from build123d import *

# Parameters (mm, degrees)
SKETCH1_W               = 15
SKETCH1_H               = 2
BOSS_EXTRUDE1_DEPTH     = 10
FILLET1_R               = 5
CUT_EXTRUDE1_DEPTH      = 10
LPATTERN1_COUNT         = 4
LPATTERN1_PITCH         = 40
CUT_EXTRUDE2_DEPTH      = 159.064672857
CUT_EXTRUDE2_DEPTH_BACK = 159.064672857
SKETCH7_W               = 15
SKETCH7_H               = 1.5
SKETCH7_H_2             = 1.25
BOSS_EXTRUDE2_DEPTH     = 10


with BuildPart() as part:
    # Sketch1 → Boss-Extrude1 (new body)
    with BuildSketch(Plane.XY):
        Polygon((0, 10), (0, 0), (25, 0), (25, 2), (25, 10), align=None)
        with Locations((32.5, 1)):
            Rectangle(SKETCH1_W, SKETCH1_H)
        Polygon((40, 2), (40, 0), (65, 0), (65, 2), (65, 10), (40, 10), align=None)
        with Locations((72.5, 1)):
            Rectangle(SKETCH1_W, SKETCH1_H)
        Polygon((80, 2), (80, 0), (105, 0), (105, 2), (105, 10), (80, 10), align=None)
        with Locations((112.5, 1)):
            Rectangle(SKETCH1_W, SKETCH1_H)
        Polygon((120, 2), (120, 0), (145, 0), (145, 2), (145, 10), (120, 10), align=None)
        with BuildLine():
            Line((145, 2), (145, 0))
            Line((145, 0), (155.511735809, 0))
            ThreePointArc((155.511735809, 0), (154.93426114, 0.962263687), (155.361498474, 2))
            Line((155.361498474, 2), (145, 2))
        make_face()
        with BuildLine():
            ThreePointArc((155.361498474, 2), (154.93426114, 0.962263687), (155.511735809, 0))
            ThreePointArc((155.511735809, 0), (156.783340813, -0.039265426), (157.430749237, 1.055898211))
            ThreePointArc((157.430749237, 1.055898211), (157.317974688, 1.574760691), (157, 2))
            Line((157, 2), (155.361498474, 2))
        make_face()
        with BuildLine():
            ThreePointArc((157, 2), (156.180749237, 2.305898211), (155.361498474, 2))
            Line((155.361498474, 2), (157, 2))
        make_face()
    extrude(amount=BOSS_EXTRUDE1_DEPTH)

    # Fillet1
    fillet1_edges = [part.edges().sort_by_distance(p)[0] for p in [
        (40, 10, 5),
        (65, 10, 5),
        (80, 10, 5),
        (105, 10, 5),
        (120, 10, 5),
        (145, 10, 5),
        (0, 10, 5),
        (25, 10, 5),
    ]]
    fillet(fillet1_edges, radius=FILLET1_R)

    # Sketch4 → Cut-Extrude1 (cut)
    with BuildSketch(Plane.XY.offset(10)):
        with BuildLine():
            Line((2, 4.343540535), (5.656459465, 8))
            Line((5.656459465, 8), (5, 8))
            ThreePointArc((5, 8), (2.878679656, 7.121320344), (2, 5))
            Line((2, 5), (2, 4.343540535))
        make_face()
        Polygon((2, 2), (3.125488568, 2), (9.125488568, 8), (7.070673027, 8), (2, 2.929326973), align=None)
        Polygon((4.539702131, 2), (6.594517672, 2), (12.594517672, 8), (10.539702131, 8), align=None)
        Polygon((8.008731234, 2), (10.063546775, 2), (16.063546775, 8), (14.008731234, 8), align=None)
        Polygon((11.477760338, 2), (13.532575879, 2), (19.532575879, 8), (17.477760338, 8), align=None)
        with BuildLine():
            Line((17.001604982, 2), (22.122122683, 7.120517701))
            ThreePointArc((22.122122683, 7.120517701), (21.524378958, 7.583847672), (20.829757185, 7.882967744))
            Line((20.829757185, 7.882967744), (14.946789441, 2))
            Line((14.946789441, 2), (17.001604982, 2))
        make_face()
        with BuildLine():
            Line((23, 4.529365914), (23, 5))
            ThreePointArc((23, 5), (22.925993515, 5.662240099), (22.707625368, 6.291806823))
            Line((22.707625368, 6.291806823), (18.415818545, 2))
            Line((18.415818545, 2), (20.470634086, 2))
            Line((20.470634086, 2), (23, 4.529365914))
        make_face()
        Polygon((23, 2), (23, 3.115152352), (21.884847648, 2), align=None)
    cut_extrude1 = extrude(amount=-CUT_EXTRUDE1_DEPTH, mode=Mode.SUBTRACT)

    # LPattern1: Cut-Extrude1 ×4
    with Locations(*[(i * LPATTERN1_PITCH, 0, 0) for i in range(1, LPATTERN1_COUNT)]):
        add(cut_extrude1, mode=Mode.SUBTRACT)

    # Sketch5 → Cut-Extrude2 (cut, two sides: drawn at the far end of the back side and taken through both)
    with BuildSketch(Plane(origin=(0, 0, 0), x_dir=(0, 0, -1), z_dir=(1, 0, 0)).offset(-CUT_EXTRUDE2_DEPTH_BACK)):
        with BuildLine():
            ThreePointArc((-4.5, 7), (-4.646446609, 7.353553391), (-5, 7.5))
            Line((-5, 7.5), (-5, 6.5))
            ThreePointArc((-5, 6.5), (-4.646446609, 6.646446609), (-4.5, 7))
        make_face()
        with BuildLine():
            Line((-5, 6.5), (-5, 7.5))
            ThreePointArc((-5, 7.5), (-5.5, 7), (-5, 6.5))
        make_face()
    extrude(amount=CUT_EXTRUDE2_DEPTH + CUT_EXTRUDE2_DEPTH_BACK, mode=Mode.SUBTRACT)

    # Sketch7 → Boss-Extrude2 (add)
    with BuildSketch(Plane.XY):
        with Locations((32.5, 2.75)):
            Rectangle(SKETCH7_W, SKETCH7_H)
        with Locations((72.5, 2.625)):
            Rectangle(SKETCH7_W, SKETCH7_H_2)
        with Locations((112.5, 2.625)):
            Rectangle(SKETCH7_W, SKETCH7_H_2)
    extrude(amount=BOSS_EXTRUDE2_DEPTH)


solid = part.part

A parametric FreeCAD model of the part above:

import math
import FreeCAD as App
import Part
import Sketcher
from FreeCAD import Vector
Q = App.Units.Quantity


def edges_at(feature, points):
    """Names of the edges that pass closest to the given points."""
    edges = feature.Shape.Edges
    near = lambda p: min(range(len(edges)), key=lambda i: edges[i].distToShape(Part.Vertex(*p))[0])
    return sorted({f"Edge{near(p) + 1}" for p in points})

doc = App.newDocument("Part")
body = doc.addObject("PartDesign::Body", "Body")

# Sketch on XY plane
sketch1 = body.newObject("Sketcher::SketchObject", "Sketch")
sketch1.AttachmentSupport = (doc.getObject("XY_Plane"), [""])
sketch1.MapMode = "FlatFace"
sketch1.addGeometry([
    Part.LineSegment(Vector(0, 10, 0), Vector(0, 0, 0)),  # 0
    Part.LineSegment(Vector(0, 0, 0), Vector(155.5, 0, 0)),  # 1
    Part.ArcOfCircle(Part.Circle(Vector(156.2, 1.1, 0), Vector(0, 0, 1), 1.2), math.radians(-122), math.radians(0)),  # 2
    Part.ArcOfCircle(Part.Circle(Vector(156.2, 1.1, 0), Vector(0, 0, 1), 1.3), math.radians(0), math.radians(49)),  # 3
    Part.ArcOfCircle(Part.Circle(Vector(156.2, 1.1, 0), Vector(0, 0, 1), 1.3), math.radians(49), math.radians(131)),  # 4
    Part.LineSegment(Vector(155.4, 2, 0), Vector(145, 2, 0)),  # 5
    Part.LineSegment(Vector(145, 2, 0), Vector(145, 10, 0)),  # 6
    Part.LineSegment(Vector(145, 10, 0), Vector(120, 10, 0)),  # 7
    Part.LineSegment(Vector(120, 10, 0), Vector(120, 2, 0)),  # 8
    Part.LineSegment(Vector(120, 2, 0), Vector(105, 2, 0)),  # 9
    Part.LineSegment(Vector(105, 2, 0), Vector(105, 10, 0)),  # 10
    Part.LineSegment(Vector(105, 10, 0), Vector(80, 10, 0)),  # 11
    Part.LineSegment(Vector(80, 10, 0), Vector(80, 2, 0)),  # 12
    Part.LineSegment(Vector(80, 2, 0), Vector(65, 2, 0)),  # 13
    Part.LineSegment(Vector(65, 2, 0), Vector(65, 10, 0)),  # 14
    Part.LineSegment(Vector(65, 10, 0), Vector(40, 10, 0)),  # 15
    Part.LineSegment(Vector(40, 10, 0), Vector(40, 2, 0)),  # 16
    Part.LineSegment(Vector(40, 2, 0), Vector(25, 2, 0)),  # 17
    Part.LineSegment(Vector(25, 2, 0), Vector(25, 10, 0)),  # 18
    Part.LineSegment(Vector(25, 10, 0), Vector(0, 10, 0)),  # 19
], False)
sketch1.addConstraint([
    Sketcher.Constraint("Coincident", 0, 2, 1, 1),
    Sketcher.Constraint("Coincident", 1, 2, 2, 1),
    Sketcher.Constraint("Tangent", 2, 2, 3, 1),
    Sketcher.Constraint("Tangent", 3, 2, 4, 1),
    Sketcher.Constraint("Coincident", 4, 2, 5, 1),
    Sketcher.Constraint("Coincident", 5, 2, 6, 1),
    Sketcher.Constraint("Coincident", 6, 2, 7, 1),
    Sketcher.Constraint("Coincident", 7, 2, 8, 1),
    Sketcher.Constraint("Coincident", 8, 2, 9, 1),
    Sketcher.Constraint("Coincident", 9, 2, 10, 1),
    Sketcher.Constraint("Coincident", 10, 2, 11, 1),
    Sketcher.Constraint("Coincident", 11, 2, 12, 1),
    Sketcher.Constraint("Coincident", 12, 2, 13, 1),
    Sketcher.Constraint("Coincident", 13, 2, 14, 1),
    Sketcher.Constraint("Coincident", 14, 2, 15, 1),
    Sketcher.Constraint("Coincident", 15, 2, 16, 1),
    Sketcher.Constraint("Coincident", 16, 2, 17, 1),
    Sketcher.Constraint("Coincident", 17, 2, 18, 1),
    Sketcher.Constraint("Coincident", 18, 2, 19, 1),
    Sketcher.Constraint("Coincident", 19, 2, 0, 1),
    Sketcher.Constraint("Vertical", 0),
    Sketcher.Constraint("Horizontal", 1),
    Sketcher.Constraint("Horizontal", 5),
    Sketcher.Constraint("Vertical", 6),
    Sketcher.Constraint("Horizontal", 7),
    Sketcher.Constraint("Vertical", 8),
    Sketcher.Constraint("Horizontal", 9),
    Sketcher.Constraint("Vertical", 10),
    Sketcher.Constraint("Horizontal", 11),
    Sketcher.Constraint("Vertical", 12),
    Sketcher.Constraint("Horizontal", 13),
    Sketcher.Constraint("Vertical", 14),
    Sketcher.Constraint("Horizontal", 15),
    Sketcher.Constraint("Vertical", 16),
    Sketcher.Constraint("Horizontal", 17),
    Sketcher.Constraint("Vertical", 18),
    Sketcher.Constraint("Horizontal", 19),
    Sketcher.Constraint("Coincident", 0, 2, -1, 1),
    Sketcher.Constraint("Coincident", 4, 3, 2, 3),
    Sketcher.Constraint("Horizontal", 4, 3, 2, 2),
    Sketcher.Constraint("Horizontal", 3, 2, 4, 2),
    Sketcher.Constraint("Horizontal", 5, 2, 8, 2),
    Sketcher.Constraint("Horizontal", 7, 2, 10, 2),
    Sketcher.Constraint("Horizontal", 9, 2, 12, 2),
    Sketcher.Constraint("Horizontal", 11, 2, 14, 2),
    Sketcher.Constraint("Horizontal", 13, 2, 16, 2),
    Sketcher.Constraint("Horizontal", 15, 2, 18, 2),
    Sketcher.Constraint("Equal", 7, 11),
    Sketcher.Constraint("Equal", 9, 13),
    Sketcher.Constraint("Equal", 11, 15),
    Sketcher.Constraint("Equal", 13, 17),
    Sketcher.Constraint("Equal", 15, 19),
    Sketcher.Constraint("DistanceX", 7, 2, 7, 1, Q("25 mm")),
    Sketcher.Constraint("DistanceX", 9, 2, 9, 1, Q("15 mm")),
    Sketcher.Constraint("DistanceY", 0, 2, 0, 1, Q("10 mm")),
    Sketcher.Constraint("DistanceY", 6, 1, 6, 2, Q("8 mm")),
    Sketcher.Constraint("Radius", 2, Q("1.25 mm")),
    Sketcher.Constraint("DistanceX", -1, 1, 3, 2, Q("157 mm")),
    Sketcher.Constraint("DistanceX", 5, 2, 5, 1, Q("10.361498 mm")),
])
pad1 = body.newObject("PartDesign::Pad", "Pad")
pad1.Profile = sketch1
pad1.Length = 10
doc.recompute()

fillet = body.newObject("PartDesign::Fillet", "Fillet")
fillet.Base = (pad1, edges_at(pad1, [
    (40, 10, 5),
    (65, 10, 5),
    (80, 10, 5),
    (105, 10, 5),
    (120, 10, 5),
    (145, 10, 5),
    (0, 10, 5),
    (25, 10, 5),
]))
fillet.Radius = 5

# Sketch on XY plane
sketch2 = body.newObject("Sketcher::SketchObject", "Sketch001")
sketch2.AttachmentSupport = (doc.getObject("XY_Plane"), [""])
sketch2.MapMode = "FlatFace"
sketch2.AttachmentOffset = App.Placement(Vector(0, 0, 10), App.Rotation())
sketch2.addGeometry([
    Part.LineSegment(Vector(2, 4.34, 0), Vector(5.66, 8, 0)),  # 0
    Part.LineSegment(Vector(5.66, 8, 0), Vector(5, 8, 0)),  # 1
    Part.ArcOfCircle(Part.Circle(Vector(5, 5, 0), Vector(0, 0, 1), 3), math.radians(90), math.radians(180)),  # 2
    Part.LineSegment(Vector(2, 5, 0), Vector(2, 4.34, 0)),  # 3
    Part.LineSegment(Vector(2, 2, 0), Vector(3.13, 2, 0)),  # 4
    Part.LineSegment(Vector(3.13, 2, 0), Vector(9.13, 8, 0)),  # 5
    Part.LineSegment(Vector(9.13, 8, 0), Vector(7.07, 8, 0)),  # 6
    Part.LineSegment(Vector(7.07, 8, 0), Vector(2, 2.93, 0)),  # 7
    Part.LineSegment(Vector(2, 2.93, 0), Vector(2, 2, 0)),  # 8
    Part.LineSegment(Vector(4.54, 2, 0), Vector(6.59, 2, 0)),  # 9
    Part.LineSegment(Vector(6.59, 2, 0), Vector(12.59, 8, 0)),  # 10
    Part.LineSegment(Vector(12.59, 8, 0), Vector(10.54, 8, 0)),  # 11
    Part.LineSegment(Vector(10.54, 8, 0), Vector(4.54, 2, 0)),  # 12
    Part.LineSegment(Vector(8.01, 2, 0), Vector(10.06, 2, 0)),  # 13
    Part.LineSegment(Vector(10.06, 2, 0), Vector(16.06, 8, 0)),  # 14
    Part.LineSegment(Vector(16.06, 8, 0), Vector(14.01, 8, 0)),  # 15
    Part.LineSegment(Vector(14.01, 8, 0), Vector(8.01, 2, 0)),  # 16
    Part.LineSegment(Vector(11.48, 2, 0), Vector(13.53, 2, 0)),  # 17
    Part.LineSegment(Vector(13.53, 2, 0), Vector(19.53, 8, 0)),  # 18
    Part.LineSegment(Vector(19.53, 8, 0), Vector(17.48, 8, 0)),  # 19
    Part.LineSegment(Vector(17.48, 8, 0), Vector(11.48, 2, 0)),  # 20
    Part.LineSegment(Vector(17, 2, 0), Vector(22.12, 7.12, 0)),  # 21
    Part.ArcOfCircle(Part.Circle(Vector(20, 5, 0), Vector(0, 0, 1), 3), math.radians(45), math.radians(74)),  # 22
    Part.LineSegment(Vector(20.83, 7.88, 0), Vector(14.95, 2, 0)),  # 23
    Part.LineSegment(Vector(14.95, 2, 0), Vector(17, 2, 0)),  # 24
    Part.LineSegment(Vector(23, 4.53, 0), Vector(23, 5, 0)),  # 25
    Part.ArcOfCircle(Part.Circle(Vector(20, 5, 0), Vector(0, 0, 1), 3), math.radians(0), math.radians(26)),  # 26
    Part.LineSegment(Vector(22.71, 6.29, 0), Vector(18.42, 2, 0)),  # 27
    Part.LineSegment(Vector(18.42, 2, 0), Vector(20.47, 2, 0)),  # 28
    Part.LineSegment(Vector(20.47, 2, 0), Vector(23, 4.53, 0)),  # 29
    Part.LineSegment(Vector(23, 2, 0), Vector(23, 3.12, 0)),  # 30
    Part.LineSegment(Vector(23, 3.12, 0), Vector(21.88, 2, 0)),  # 31
    Part.LineSegment(Vector(21.88, 2, 0), Vector(23, 2, 0)),  # 32
], False)
sketch2.addConstraint([
    Sketcher.Constraint("Coincident", 0, 2, 1, 1),
    Sketcher.Constraint("Tangent", 1, 2, 2, 1),
    Sketcher.Constraint("Tangent", 2, 2, 3, 1),
    Sketcher.Constraint("Coincident", 3, 2, 0, 1),
    Sketcher.Constraint("Coincident", 4, 2, 5, 1),
    Sketcher.Constraint("Coincident", 5, 2, 6, 1),
    Sketcher.Constraint("Coincident", 6, 2, 7, 1),
    Sketcher.Constraint("Coincident", 7, 2, 8, 1),
    Sketcher.Constraint("Coincident", 8, 2, 4, 1),
    Sketcher.Constraint("Coincident", 9, 2, 10, 1),
    Sketcher.Constraint("Coincident", 10, 2, 11, 1),
    Sketcher.Constraint("Coincident", 11, 2, 12, 1),
    Sketcher.Constraint("Coincident", 12, 2, 9, 1),
    Sketcher.Constraint("Coincident", 13, 2, 14, 1),
    Sketcher.Constraint("Coincident", 14, 2, 15, 1),
    Sketcher.Constraint("Coincident", 15, 2, 16, 1),
    Sketcher.Constraint("Coincident", 16, 2, 13, 1),
    Sketcher.Constraint("Coincident", 17, 2, 18, 1),
    Sketcher.Constraint("Coincident", 18, 2, 19, 1),
    Sketcher.Constraint("Coincident", 19, 2, 20, 1),
    Sketcher.Constraint("Coincident", 20, 2, 17, 1),
    Sketcher.Constraint("Coincident", 21, 2, 22, 1),
    Sketcher.Constraint("Coincident", 22, 2, 23, 1),
    Sketcher.Constraint("Coincident", 23, 2, 24, 1),
    Sketcher.Constraint("Coincident", 24, 2, 21, 1),
    Sketcher.Constraint("Tangent", 25, 2, 26, 1),
    Sketcher.Constraint("Coincident", 26, 2, 27, 1),
    Sketcher.Constraint("Coincident", 27, 2, 28, 1),
    Sketcher.Constraint("Coincident", 28, 2, 29, 1),
    Sketcher.Constraint("Coincident", 29, 2, 25, 1),
    Sketcher.Constraint("Coincident", 30, 2, 31, 1),
    Sketcher.Constraint("Coincident", 31, 2, 32, 1),
    Sketcher.Constraint("Coincident", 32, 2, 30, 1),
    Sketcher.Constraint("Horizontal", 1),
    Sketcher.Constraint("Vertical", 3),
    Sketcher.Constraint("Horizontal", 4),
    Sketcher.Constraint("Horizontal", 6),
    Sketcher.Constraint("Vertical", 8),
    Sketcher.Constraint("Horizontal", 9),
    Sketcher.Constraint("Horizontal", 11),
    Sketcher.Constraint("Horizontal", 13),
    Sketcher.Constraint("Horizontal", 15),
    Sketcher.Constraint("Horizontal", 17),
    Sketcher.Constraint("Horizontal", 19),
    Sketcher.Constraint("Horizontal", 24),
    Sketcher.Constraint("Vertical", 25),
    Sketcher.Constraint("Horizontal", 28),
    Sketcher.Constraint("Vertical", 30),
    Sketcher.Constraint("Horizontal", 32),
    Sketcher.Constraint("Coincident", 26, 3, 22, 3),
    Sketcher.Constraint("Equal", 2, 22),
    Sketcher.Constraint("Equal", 22, 26),
    Sketcher.Constraint("Parallel", 0, 5),
    Sketcher.Constraint("Parallel", 5, 7),
    Sketcher.Constraint("Parallel", 7, 10),
    Sketcher.Constraint("Parallel", 10, 12),
    Sketcher.Constraint("Parallel", 12, 14),
    Sketcher.Constraint("Parallel", 14, 16),
    Sketcher.Constraint("Parallel", 16, 18),
    Sketcher.Constraint("Parallel", 18, 20),
    Sketcher.Constraint("Parallel", 20, 21),
    Sketcher.Constraint("Parallel", 21, 23),
    Sketcher.Constraint("Parallel", 23, 27),
    Sketcher.Constraint("Parallel", 27, 29),
    Sketcher.Constraint("Parallel", 29, 31),
    Sketcher.Constraint("Horizontal", 2, 3, 22, 3),
    Sketcher.Constraint("Horizontal", 1, 2, 5, 2),
    Sketcher.Constraint("Horizontal", 8, 2, 9, 2),
    Sketcher.Constraint("Horizontal", 6, 2, 10, 2),
    Sketcher.Constraint("Horizontal", 12, 2, 13, 2),
    Sketcher.Constraint("Horizontal", 11, 2, 14, 2),
    Sketcher.Constraint("Horizontal", 16, 2, 17, 2),
    Sketcher.Constraint("Horizontal", 15, 2, 18, 2),
    Sketcher.Constraint("Horizontal", 20, 2, 23, 2),
    Sketcher.Constraint("Horizontal", 24, 2, 27, 2),
    Sketcher.Constraint("Horizontal", 28, 2, 31, 2),
    Sketcher.Constraint("Vertical", 3, 2, 7, 2),
    Sketcher.Constraint("Vertical", 29, 2, 30, 2),
    Sketcher.Constraint("Equal", 6, 9),
    Sketcher.Constraint("Equal", 11, 13),
    Sketcher.Constraint("Equal", 15, 17),
    Sketcher.Constraint("Equal", 19, 24),
    Sketcher.Constraint("Equal", 24, 28),
    Sketcher.Constraint("Equal", 1, 3),
    Sketcher.Constraint("Radius", 2, Q("3 mm")),
    Sketcher.Constraint("DistanceX", -1, 1, 2, 3, Q("5 mm")),
    Sketcher.Constraint("DistanceY", -1, 1, 2, 3, Q("5 mm")),
    Sketcher.Constraint("DistanceX", -1, 1, 22, 3, Q("20 mm")),
    Sketcher.Constraint("DistanceY", -1, 1, 4, 2, Q("2 mm")),
    Sketcher.Constraint("DistanceX", 1, 2, 1, 1, Q("0.656459 mm")),
    Sketcher.Constraint("DistanceX", 4, 1, 4, 2, Q("1.125489 mm")),
    Sketcher.Constraint("Distance", 27, Q("6.069531 mm")),
    Sketcher.Constraint("DistanceX", 6, 2, 6, 1, Q("2.054816 mm")),
    Sketcher.Constraint("DistanceX", 32, 1, 32, 2, Q("1.115152 mm")),
    Sketcher.Constraint("DistanceX", -1, 1, 15, 2, Q("14.008731 mm")),
    Sketcher.Constraint("DistanceX", -1, 1, 19, 2, Q("17.47776 mm")),
    Sketcher.Constraint("DistanceX", -1, 1, 23, 2, Q("14.946789 mm")),
    Sketcher.Constraint("DistanceX", 4, 2, 9, 2, Q("3.469029 mm")),
])
pocket1 = body.newObject("PartDesign::Pocket", "Pocket")
pocket1.Profile = sketch2
pocket1.Length = 10
doc.recompute()

linearpattern = body.newObject("PartDesign::LinearPattern", "LinearPattern")
linearpattern.Originals = [pocket1]
linearpattern.Direction = (doc.getObject("X_Axis"), [""])
linearpattern.Mode = "offset"
linearpattern.Offset = 40
linearpattern.Occurrences = 4
body.Tip = linearpattern

# Sketch on YZ plane
sketch3 = body.newObject("Sketcher::SketchObject", "Sketch002")
sketch3.AttachmentSupport = (doc.getObject("YZ_Plane"), [""])
sketch3.MapMode = "FlatFace"
sketch3.addGeometry([
    Part.ArcOfCircle(Part.Circle(Vector(7, 5, 0), Vector(0, 0, 1), 0.5), math.radians(-90), math.radians(0)),
    Part.ArcOfCircle(Part.Circle(Vector(7, 5, 0), Vector(0, 0, 1), 0.5), math.radians(0), math.radians(180)),
    Part.ArcOfCircle(Part.Circle(Vector(7, 5, 0), Vector(0, 0, 1), 0.5), math.radians(180), math.radians(270)),
], False)
sketch3.addConstraint([
    Sketcher.Constraint("Tangent", 0, 2, 1, 1),
    Sketcher.Constraint("Tangent", 1, 2, 2, 1),
    Sketcher.Constraint("Tangent", 2, 2, 0, 1),
    Sketcher.Constraint("Horizontal", 2, 3, 0, 2),
    Sketcher.Constraint("Horizontal", 0, 2, 1, 2),
    Sketcher.Constraint("Vertical", 1, 3, 2, 2),
    Sketcher.Constraint("Radius", 0, Q("0.5 mm")),
    Sketcher.Constraint("DistanceX", -1, 1, 0, 3, Q("7 mm")),
    Sketcher.Constraint("DistanceY", -1, 1, 0, 3, Q("5 mm")),
])
pocket2 = body.newObject("PartDesign::Pocket", "Pocket001")
pocket2.Profile = sketch3
pocket2.Type = "ThroughAll"
pocket2.Midplane = True

# Sketch on XY plane
sketch4 = body.newObject("Sketcher::SketchObject", "Sketch003")
sketch4.AttachmentSupport = (doc.getObject("XY_Plane"), [""])
sketch4.MapMode = "FlatFace"
sketch4.addGeometry([
    Part.LineSegment(Vector(25, 3.5, 0), Vector(25, 2, 0)),  # 0
    Part.LineSegment(Vector(25, 2, 0), Vector(40, 2, 0)),  # 1
    Part.LineSegment(Vector(40, 2, 0), Vector(40, 3.5, 0)),  # 2
    Part.LineSegment(Vector(40, 3.5, 0), Vector(25, 3.5, 0)),  # 3
    Part.LineSegment(Vector(65, 3.2, 0), Vector(65, 2, 0)),  # 4
    Part.LineSegment(Vector(65, 2, 0), Vector(80, 2, 0)),  # 5
    Part.LineSegment(Vector(80, 2, 0), Vector(80, 3.2, 0)),  # 6
    Part.LineSegment(Vector(80, 3.2, 0), Vector(65, 3.2, 0)),  # 7
    Part.LineSegment(Vector(105, 3.2, 0), Vector(105, 2, 0)),  # 8
    Part.LineSegment(Vector(105, 2, 0), Vector(120, 2, 0)),  # 9
    Part.LineSegment(Vector(120, 2, 0), Vector(120, 3.2, 0)),  # 10
    Part.LineSegment(Vector(120, 3.2, 0), Vector(105, 3.2, 0)),  # 11
], False)
sketch4.addConstraint([
    Sketcher.Constraint("Coincident", 0, 2, 1, 1),
    Sketcher.Constraint("Coincident", 1, 2, 2, 1),
    Sketcher.Constraint("Coincident", 2, 2, 3, 1),
    Sketcher.Constraint("Coincident", 3, 2, 0, 1),
    Sketcher.Constraint("Coincident", 4, 2, 5, 1),
    Sketcher.Constraint("Coincident", 5, 2, 6, 1),
    Sketcher.Constraint("Coincident", 6, 2, 7, 1),
    Sketcher.Constraint("Coincident", 7, 2, 4, 1),
    Sketcher.Constraint("Coincident", 8, 2, 9, 1),
    Sketcher.Constraint("Coincident", 9, 2, 10, 1),
    Sketcher.Constraint("Coincident", 10, 2, 11, 1),
    Sketcher.Constraint("Coincident", 11, 2, 8, 1),
    Sketcher.Constraint("Vertical", 0),
    Sketcher.Constraint("Horizontal", 1),
    Sketcher.Constraint("Vertical", 2),
    Sketcher.Constraint("Horizontal", 3),
    Sketcher.Constraint("Vertical", 4),
    Sketcher.Constraint("Horizontal", 5),
    Sketcher.Constraint("Vertical", 6),
    Sketcher.Constraint("Horizontal", 7),
    Sketcher.Constraint("Vertical", 8),
    Sketcher.Constraint("Horizontal", 9),
    Sketcher.Constraint("Vertical", 10),
    Sketcher.Constraint("Horizontal", 11),
    Sketcher.Constraint("Horizontal", 1, 2, 4, 2),
    Sketcher.Constraint("Horizontal", 5, 2, 8, 2),
    Sketcher.Constraint("Horizontal", 7, 2, 10, 2),
    Sketcher.Constraint("Equal", 3, 5),
    Sketcher.Constraint("Equal", 7, 9),
    Sketcher.Constraint("DistanceX", 1, 1, 1, 2, Q("15 mm")),
    Sketcher.Constraint("DistanceY", 0, 2, 0, 1, Q("1.5 mm")),
    Sketcher.Constraint("DistanceX", -1, 1, 0, 2, Q("25 mm")),
    Sketcher.Constraint("DistanceY", -1, 1, 0, 2, Q("2 mm")),
    Sketcher.Constraint("DistanceX", -1, 1, 4, 2, Q("65 mm")),
    Sketcher.Constraint("DistanceX", -1, 1, 8, 2, Q("105 mm")),
    Sketcher.Constraint("DistanceY", 4, 2, 4, 1, Q("1.25 mm")),
])
pad2 = body.newObject("PartDesign::Pad", "Pad001")
pad2.Profile = sketch4
pad2.Length = 10

doc.recompute()
